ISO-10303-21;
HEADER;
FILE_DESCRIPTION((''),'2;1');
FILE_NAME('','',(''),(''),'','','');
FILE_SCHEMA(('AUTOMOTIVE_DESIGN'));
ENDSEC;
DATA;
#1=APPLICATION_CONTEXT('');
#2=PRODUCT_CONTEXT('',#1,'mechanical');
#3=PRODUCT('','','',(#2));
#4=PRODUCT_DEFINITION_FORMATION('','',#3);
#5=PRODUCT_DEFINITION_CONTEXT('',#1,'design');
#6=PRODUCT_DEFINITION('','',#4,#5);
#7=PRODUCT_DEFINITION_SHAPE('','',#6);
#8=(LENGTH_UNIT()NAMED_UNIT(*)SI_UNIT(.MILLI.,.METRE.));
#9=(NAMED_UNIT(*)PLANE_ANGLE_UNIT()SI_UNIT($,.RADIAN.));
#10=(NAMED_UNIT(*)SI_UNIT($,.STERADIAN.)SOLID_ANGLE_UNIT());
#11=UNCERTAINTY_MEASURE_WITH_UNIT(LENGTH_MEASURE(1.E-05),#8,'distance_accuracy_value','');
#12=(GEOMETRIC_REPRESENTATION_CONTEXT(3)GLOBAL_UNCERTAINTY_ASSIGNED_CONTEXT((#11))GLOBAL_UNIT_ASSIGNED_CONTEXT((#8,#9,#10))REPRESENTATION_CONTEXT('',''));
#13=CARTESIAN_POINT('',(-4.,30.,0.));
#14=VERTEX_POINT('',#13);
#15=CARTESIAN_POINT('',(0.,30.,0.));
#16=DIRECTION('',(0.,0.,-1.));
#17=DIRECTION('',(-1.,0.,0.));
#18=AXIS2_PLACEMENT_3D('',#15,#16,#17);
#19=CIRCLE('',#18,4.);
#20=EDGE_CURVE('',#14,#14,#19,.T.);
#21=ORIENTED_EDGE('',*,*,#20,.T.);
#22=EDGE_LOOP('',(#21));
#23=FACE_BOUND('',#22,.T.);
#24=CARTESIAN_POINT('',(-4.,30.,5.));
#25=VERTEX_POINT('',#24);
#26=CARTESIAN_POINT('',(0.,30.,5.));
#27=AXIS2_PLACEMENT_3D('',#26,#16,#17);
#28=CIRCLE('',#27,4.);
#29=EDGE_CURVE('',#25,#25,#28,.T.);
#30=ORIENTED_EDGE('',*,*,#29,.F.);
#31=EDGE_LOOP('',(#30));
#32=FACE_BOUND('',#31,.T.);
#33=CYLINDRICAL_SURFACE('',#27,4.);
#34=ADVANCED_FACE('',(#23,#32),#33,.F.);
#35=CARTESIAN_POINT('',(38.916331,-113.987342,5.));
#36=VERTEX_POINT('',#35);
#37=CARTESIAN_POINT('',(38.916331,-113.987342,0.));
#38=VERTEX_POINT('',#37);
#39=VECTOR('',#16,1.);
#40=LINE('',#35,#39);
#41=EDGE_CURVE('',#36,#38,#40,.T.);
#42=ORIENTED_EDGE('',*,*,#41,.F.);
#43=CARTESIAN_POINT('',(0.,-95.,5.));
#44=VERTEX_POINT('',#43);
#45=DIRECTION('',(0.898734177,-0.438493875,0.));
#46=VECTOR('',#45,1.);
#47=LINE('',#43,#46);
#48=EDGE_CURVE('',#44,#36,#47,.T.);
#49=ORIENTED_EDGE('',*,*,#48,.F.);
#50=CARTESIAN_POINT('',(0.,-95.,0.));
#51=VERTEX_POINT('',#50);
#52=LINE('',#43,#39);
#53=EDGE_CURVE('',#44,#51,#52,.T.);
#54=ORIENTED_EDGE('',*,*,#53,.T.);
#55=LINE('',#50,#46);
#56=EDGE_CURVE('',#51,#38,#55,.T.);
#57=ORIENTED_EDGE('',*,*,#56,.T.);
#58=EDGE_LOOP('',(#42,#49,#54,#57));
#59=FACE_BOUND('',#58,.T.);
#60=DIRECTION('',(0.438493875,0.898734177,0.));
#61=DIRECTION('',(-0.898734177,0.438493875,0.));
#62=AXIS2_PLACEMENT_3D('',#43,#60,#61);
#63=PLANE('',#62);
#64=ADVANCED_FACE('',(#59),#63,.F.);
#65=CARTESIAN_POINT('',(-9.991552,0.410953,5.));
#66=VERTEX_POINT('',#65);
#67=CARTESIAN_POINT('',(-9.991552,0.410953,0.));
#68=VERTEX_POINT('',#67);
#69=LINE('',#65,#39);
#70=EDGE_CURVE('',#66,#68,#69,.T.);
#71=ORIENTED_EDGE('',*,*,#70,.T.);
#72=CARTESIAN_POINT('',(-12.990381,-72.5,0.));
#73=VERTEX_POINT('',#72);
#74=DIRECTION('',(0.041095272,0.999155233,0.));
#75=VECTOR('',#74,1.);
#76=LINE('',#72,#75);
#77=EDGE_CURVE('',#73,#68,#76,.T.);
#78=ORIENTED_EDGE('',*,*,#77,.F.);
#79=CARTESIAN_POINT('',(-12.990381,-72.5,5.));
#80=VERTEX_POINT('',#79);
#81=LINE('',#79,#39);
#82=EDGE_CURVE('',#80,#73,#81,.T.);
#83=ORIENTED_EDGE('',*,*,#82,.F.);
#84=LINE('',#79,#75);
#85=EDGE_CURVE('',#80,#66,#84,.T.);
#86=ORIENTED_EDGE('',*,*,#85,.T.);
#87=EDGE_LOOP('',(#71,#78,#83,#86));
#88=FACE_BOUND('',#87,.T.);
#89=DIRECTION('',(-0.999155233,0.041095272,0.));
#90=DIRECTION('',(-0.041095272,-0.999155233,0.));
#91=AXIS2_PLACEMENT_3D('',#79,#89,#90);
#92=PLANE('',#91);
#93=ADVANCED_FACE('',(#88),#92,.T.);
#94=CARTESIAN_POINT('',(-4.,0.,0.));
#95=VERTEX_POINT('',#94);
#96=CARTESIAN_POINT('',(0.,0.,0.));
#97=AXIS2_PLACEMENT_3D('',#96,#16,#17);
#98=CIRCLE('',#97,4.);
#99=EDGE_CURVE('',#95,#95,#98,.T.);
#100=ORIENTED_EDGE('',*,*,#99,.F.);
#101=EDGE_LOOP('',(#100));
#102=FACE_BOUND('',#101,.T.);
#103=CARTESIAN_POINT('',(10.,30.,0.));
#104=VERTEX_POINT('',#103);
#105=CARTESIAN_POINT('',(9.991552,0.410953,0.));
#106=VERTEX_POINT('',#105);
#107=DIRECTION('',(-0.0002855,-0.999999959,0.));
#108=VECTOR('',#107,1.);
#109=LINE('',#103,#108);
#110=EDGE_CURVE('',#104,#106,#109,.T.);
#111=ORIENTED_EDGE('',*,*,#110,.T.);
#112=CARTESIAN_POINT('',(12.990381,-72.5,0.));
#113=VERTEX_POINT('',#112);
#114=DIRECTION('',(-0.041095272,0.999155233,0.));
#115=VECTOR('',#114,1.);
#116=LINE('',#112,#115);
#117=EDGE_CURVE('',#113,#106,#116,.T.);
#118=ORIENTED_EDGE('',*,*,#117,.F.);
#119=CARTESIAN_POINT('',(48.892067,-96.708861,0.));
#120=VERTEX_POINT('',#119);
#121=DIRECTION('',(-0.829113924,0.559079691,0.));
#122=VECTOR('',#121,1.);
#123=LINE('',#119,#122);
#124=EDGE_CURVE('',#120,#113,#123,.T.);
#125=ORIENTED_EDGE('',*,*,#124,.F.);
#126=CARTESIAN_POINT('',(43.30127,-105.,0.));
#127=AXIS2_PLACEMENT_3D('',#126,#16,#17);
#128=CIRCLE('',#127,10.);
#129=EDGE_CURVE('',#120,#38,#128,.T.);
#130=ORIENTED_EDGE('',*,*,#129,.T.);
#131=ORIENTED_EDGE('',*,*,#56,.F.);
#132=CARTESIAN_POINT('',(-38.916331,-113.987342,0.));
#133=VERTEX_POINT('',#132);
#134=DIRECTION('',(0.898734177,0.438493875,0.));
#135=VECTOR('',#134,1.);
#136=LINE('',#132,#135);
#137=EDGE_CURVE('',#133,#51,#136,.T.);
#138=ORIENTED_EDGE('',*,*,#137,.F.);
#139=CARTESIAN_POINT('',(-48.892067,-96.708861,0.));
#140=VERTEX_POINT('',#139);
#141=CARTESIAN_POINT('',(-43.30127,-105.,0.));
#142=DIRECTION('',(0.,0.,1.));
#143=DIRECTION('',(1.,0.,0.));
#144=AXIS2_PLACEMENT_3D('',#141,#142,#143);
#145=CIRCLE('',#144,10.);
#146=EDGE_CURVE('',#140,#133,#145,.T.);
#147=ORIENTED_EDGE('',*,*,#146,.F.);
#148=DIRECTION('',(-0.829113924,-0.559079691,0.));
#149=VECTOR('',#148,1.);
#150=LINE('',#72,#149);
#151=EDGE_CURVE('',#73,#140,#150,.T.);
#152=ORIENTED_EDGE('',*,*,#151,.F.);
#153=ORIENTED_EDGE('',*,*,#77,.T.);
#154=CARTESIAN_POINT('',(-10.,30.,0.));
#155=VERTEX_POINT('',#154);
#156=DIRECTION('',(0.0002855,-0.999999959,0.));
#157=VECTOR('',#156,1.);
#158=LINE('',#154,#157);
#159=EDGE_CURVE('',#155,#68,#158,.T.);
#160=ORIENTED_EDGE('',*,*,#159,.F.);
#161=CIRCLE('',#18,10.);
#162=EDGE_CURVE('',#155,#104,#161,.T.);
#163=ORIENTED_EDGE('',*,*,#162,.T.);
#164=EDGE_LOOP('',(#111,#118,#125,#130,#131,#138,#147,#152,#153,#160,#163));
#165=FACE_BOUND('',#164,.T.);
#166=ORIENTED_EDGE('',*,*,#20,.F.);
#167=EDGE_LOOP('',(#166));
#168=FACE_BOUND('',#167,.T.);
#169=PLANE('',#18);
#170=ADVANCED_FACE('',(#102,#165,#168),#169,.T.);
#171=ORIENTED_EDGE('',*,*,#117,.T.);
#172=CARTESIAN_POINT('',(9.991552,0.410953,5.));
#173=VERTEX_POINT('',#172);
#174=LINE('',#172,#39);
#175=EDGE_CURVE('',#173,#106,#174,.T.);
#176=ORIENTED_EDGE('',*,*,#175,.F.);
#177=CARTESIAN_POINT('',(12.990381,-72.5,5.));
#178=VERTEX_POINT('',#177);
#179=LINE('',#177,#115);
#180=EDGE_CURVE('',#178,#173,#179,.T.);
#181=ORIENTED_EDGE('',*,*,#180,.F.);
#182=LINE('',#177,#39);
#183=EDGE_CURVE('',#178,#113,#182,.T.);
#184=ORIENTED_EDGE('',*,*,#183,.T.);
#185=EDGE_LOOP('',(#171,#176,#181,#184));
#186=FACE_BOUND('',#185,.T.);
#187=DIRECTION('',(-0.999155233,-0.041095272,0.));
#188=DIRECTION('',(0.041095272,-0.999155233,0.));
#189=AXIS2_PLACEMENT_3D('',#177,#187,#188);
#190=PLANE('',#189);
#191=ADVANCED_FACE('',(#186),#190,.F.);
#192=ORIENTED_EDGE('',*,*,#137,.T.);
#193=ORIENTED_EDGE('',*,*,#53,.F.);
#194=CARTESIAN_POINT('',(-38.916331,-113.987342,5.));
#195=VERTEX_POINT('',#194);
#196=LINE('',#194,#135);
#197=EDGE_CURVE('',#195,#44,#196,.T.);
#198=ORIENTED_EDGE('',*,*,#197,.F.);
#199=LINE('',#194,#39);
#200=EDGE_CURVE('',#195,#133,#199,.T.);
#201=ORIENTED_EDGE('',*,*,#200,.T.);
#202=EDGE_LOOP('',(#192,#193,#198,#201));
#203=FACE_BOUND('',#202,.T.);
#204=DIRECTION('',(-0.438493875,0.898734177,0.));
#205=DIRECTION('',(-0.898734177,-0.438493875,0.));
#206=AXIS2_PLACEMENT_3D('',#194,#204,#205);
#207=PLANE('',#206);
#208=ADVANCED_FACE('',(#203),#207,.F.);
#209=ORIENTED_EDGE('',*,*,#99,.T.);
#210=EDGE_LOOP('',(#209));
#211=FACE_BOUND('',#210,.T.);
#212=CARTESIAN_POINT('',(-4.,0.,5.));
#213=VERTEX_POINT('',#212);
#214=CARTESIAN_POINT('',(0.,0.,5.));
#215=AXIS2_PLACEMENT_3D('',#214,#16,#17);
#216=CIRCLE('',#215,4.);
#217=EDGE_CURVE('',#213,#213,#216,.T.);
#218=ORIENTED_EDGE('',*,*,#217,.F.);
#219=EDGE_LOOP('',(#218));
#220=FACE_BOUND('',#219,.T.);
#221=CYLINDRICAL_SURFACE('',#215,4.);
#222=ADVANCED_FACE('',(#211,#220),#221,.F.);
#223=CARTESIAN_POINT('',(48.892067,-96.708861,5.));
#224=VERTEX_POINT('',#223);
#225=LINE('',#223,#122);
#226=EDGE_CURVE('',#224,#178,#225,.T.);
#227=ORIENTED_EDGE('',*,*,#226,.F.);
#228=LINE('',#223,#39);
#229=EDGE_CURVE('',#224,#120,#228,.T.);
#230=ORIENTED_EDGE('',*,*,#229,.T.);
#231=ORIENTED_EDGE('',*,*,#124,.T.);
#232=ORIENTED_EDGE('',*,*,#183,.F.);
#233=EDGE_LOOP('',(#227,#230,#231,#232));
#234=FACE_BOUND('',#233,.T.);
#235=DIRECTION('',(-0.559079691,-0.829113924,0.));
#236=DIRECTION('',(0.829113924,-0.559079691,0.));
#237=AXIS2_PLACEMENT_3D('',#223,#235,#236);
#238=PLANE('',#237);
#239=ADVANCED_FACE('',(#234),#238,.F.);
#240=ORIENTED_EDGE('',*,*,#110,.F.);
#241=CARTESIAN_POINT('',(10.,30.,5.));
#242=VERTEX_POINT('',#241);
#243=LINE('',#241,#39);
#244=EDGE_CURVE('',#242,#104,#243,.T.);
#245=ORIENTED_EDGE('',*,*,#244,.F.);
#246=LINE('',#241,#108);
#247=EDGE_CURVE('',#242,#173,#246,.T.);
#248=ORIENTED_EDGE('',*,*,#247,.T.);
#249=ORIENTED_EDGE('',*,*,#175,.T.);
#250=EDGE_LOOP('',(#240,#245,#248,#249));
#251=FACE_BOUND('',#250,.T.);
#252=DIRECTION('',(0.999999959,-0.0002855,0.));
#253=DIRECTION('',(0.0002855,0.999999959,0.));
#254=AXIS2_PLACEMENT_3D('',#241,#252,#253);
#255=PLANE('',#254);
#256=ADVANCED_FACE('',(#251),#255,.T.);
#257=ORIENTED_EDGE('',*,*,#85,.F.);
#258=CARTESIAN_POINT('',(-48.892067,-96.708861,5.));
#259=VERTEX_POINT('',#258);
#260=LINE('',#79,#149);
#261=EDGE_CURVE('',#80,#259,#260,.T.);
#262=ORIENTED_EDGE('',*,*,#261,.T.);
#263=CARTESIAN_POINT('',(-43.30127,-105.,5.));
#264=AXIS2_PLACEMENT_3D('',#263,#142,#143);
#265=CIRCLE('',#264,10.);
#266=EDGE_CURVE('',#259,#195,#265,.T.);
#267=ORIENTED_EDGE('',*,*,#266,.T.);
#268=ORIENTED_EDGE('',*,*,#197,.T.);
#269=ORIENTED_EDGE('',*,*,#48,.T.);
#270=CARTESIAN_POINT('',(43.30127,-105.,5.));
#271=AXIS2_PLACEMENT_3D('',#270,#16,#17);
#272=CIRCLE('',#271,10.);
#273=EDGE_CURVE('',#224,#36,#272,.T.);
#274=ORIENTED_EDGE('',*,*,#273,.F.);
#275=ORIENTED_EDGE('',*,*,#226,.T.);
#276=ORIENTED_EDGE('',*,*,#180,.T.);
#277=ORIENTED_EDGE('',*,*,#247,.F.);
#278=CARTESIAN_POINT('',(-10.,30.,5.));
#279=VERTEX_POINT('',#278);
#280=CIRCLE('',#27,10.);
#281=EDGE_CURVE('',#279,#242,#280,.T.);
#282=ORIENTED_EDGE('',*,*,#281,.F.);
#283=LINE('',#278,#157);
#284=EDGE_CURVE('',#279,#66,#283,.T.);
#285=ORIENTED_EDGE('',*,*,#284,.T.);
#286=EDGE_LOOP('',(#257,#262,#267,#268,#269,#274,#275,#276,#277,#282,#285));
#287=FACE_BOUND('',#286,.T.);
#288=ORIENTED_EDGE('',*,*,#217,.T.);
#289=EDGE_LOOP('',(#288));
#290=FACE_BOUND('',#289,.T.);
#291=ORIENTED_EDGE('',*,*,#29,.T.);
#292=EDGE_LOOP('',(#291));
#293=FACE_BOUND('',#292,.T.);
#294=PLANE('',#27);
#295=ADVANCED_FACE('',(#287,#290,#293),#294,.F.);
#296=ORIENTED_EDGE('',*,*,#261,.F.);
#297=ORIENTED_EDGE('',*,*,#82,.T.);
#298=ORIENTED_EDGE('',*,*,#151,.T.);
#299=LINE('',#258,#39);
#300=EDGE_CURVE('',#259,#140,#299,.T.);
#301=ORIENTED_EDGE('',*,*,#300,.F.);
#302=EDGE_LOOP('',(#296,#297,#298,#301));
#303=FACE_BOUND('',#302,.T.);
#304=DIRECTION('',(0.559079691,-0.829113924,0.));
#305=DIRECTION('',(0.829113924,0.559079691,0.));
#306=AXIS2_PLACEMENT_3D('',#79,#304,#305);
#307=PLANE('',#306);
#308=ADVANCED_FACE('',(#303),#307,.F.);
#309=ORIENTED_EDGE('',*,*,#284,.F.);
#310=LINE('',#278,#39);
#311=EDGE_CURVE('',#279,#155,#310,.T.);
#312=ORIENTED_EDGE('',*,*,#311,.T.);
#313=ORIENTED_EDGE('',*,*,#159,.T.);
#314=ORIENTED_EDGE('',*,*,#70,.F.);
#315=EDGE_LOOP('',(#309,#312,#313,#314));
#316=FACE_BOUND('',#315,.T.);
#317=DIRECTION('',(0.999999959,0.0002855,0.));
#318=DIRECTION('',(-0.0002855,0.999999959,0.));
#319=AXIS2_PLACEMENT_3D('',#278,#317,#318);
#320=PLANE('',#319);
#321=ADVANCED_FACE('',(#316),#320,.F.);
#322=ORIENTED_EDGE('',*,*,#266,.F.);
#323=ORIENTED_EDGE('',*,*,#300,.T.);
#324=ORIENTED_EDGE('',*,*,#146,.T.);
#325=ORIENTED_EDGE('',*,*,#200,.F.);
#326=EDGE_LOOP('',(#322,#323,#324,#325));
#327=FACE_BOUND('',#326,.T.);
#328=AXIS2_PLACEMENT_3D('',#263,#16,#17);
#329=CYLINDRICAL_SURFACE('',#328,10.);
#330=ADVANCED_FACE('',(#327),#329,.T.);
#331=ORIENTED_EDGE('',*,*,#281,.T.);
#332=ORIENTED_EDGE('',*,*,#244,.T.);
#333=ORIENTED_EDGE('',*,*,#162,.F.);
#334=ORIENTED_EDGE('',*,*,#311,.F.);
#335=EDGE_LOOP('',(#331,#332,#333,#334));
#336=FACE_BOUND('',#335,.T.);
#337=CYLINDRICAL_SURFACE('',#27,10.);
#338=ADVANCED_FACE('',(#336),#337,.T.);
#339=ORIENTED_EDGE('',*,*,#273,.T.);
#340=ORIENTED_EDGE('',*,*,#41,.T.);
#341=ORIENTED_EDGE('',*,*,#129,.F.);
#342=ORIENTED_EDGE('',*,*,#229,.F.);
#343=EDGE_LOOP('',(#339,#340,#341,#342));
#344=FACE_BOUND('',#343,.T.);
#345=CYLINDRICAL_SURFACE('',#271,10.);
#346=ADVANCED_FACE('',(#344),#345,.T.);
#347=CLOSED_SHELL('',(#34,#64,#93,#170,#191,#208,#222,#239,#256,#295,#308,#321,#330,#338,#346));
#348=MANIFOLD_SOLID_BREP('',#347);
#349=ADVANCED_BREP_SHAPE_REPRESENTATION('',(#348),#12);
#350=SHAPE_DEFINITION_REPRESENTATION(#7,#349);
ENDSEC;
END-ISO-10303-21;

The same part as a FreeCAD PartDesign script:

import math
import FreeCAD as App
import Part
import Sketcher
from FreeCAD import Vector
Q = App.Units.Quantity

doc = App.newDocument("Part")
body = doc.addObject("PartDesign::Body", "Body")

# Sketch on XY plane
sketch1 = body.newObject("Sketcher::SketchObject", "Sketch")
sketch1.AttachmentSupport = (doc.getObject("XY_Plane"), [""])
sketch1.MapMode = "FlatFace"
sketch1.addGeometry(Part.LineSegment(Vector(-39, -114, 0), Vector(0, -95, 0)), False)
sketch1.addGeometry(Part.LineSegment(Vector(0, -95, 0), Vector(39, -114, 0)), False)
sketch1.addGeometry(Part.ArcOfCircle(Part.Circle(Vector(43, -105, 0), Vector(0, 0, 1), 10), math.radians(-116), math.radians(56)), False)
sketch1.addGeometry(Part.LineSegment(Vector(49, -97, 0), Vector(13, -72, 0)), False)
sketch1.addGeometry(Part.LineSegment(Vector(13, -72, 0), Vector(10, 0, 0)), False)
sketch1.addGeometry(Part.LineSegment(Vector(10, 0, 0), Vector(10, 30, 0)), False)
sketch1.addGeometry(Part.ArcOfCircle(Part.Circle(Vector(0, 30, 0), Vector(0, 0, 1), 10), math.radians(0), math.radians(180)), False)
sketch1.addGeometry(Part.LineSegment(Vector(-10, 30, 0), Vector(-10, 0, 0)), False)
sketch1.addGeometry(Part.LineSegment(Vector(-10, 0, 0), Vector(-13, -72, 0)), False)
sketch1.addGeometry(Part.LineSegment(Vector(-13, -72, 0), Vector(-49, -97, 0)), False)
sketch1.addGeometry(Part.ArcOfCircle(Part.Circle(Vector(-43, -105, 0), Vector(0, 0, 1), 10), math.radians(124), math.radians(296)), False)
sketch1.addConstraint(Sketcher.Constraint("Coincident", 0, 2, 1, 1))
sketch1.addConstraint(Sketcher.Constraint("Tangent", 1, 2, 2, 1))
sketch1.addConstraint(Sketcher.Constraint("Tangent", 2, 2, 3, 1))
sketch1.addConstraint(Sketcher.Constraint("Coincident", 3, 2, 4, 1))
sketch1.addConstraint(Sketcher.Constraint("Coincident", 4, 2, 5, 1))
sketch1.addConstraint(Sketcher.Constraint("Coincident", 5, 2, 6, 1))
sketch1.addConstraint(Sketcher.Constraint("Coincident", 6, 2, 7, 1))
sketch1.addConstraint(Sketcher.Constraint("Coincident", 7, 2, 8, 1))
sketch1.addConstraint(Sketcher.Constraint("Coincident", 8, 2, 9, 1))
sketch1.addConstraint(Sketcher.Constraint("Tangent", 9, 2, 10, 1))
sketch1.addConstraint(Sketcher.Constraint("Tangent", 10, 2, 0, 1))
sketch1.addConstraint(Sketcher.Constraint("Equal", 2, 6))
sketch1.addConstraint(Sketcher.Constraint("Equal", 6, 10))
sketch1.addConstraint(Sketcher.Constraint("Symmetric", 2, 3, 10, 3, -2))
sketch1.addConstraint(Sketcher.Constraint("Symmetric", 5, 2, 6, 2, -2))
sketch1.addConstraint(Sketcher.Constraint("Symmetric", 4, 2, 7, 2, -2))
sketch1.addConstraint(Sketcher.Constraint("Symmetric", 3, 2, 8, 2, -2))
sketch1.addConstraint(Sketcher.Constraint("PointOnObject", 0, 2, -2))
sketch1.addConstraint(Sketcher.Constraint("Horizontal", 6, 3, 5, 2))
sketch1.addConstraint(Sketcher.Constraint("Equal", 1, 3))
sketch1.addConstraint(Sketcher.Constraint("Radius", 2, Q("10 mm")))
sketch1.addConstraint(Sketcher.Constraint("DistanceY", 2, 3, -1, 1, Q("105 mm")))
sketch1.addConstraint(Sketcher.Constraint("DistanceY", -1, 1, 6, 3, Q("30 mm")))
sketch1.addConstraint(Sketcher.Constraint("DistanceY", 0, 2, -1, 1, Q("95 mm")))
sketch1.addConstraint(Sketcher.Constraint("DistanceY", 3, 2, -1, 1, Q("72.5 mm")))
sketch1.addConstraint(Sketcher.Constraint("DistanceX", 10, 3, 1, 2, Q("82.217602 mm")))
sketch1.addConstraint(Sketcher.Constraint("Distance", 5, Q("29.589048 mm")))
sketch1.addConstraint(Sketcher.Constraint("DistanceX", 4, 2, 3, 2, Q("2.998829 mm")))
pad1 = body.newObject("PartDesign::Pad", "Pad")
pad1.Profile = sketch1
pad1.Length = 5

# Sketch on XY plane
sketch2 = body.newObject("Sketcher::SketchObject", "Sketch001")
sketch2.AttachmentSupport = (doc.getObject("XY_Plane"), [""])
sketch2.MapMode = "FlatFace"
sketch2.addGeometry(Part.Circle(Vector(0, 30, 0), Vector(0, 0, 1), 4), False)
sketch2.addGeometry(Part.Circle(Vector(0, 0, 0), Vector(0, 0, 1), 4), False)
sketch2.addConstraint(Sketcher.Constraint("Coincident", 1, 3, -1, 1))
sketch2.addConstraint(Sketcher.Constraint("Equal", 0, 1))
sketch2.addConstraint(Sketcher.Constraint("PointOnObject", 0, 3, -2))
sketch2.addConstraint(Sketcher.Constraint("Diameter", 0, Q("8 mm")))
sketch2.addConstraint(Sketcher.Constraint("DistanceY", -1, 1, 0, 3, Q("30 mm")))
pocket1 = body.newObject("PartDesign::Pocket", "Pocket")
pocket1.Profile = sketch2
pocket1.Length = 5
pocket1.Reversed = True

doc.recompute()
